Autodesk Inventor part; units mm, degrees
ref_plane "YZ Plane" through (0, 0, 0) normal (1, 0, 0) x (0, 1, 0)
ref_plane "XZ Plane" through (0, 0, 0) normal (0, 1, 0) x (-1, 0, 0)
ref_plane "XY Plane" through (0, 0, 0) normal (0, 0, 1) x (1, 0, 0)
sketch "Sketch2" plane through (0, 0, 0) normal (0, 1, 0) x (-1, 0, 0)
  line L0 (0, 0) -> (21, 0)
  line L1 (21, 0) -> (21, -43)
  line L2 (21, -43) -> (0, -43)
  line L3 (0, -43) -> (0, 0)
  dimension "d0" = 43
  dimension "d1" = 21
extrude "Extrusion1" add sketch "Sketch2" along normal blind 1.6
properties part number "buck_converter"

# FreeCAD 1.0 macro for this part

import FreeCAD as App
import Part
import Sketcher
from FreeCAD import Vector
Q = App.Units.Quantity

doc = App.newDocument("Part")
params = doc.addObject("Spreadsheet::Sheet", "Params")
for row, (alias, value) in enumerate([
    ("sketch1_width", "21 mm"),
    ("sketch1_height", "43 mm"),
    ("pad1_length", "1.6 mm"),
], start=1):
    params.set(f"A{row}", alias)
    params.set(f"B{row}", "=" + value)
    params.setAlias(f"B{row}", alias)

body = doc.addObject("PartDesign::Body", "Body")

# Sketch on XZ plane
sketch1 = body.newObject("Sketcher::SketchObject", "Sketch")
sketch1.AttachmentSupport = (doc.getObject("XZ_Plane"), [""])
sketch1.MapMode = "FlatFace"
sketch1.addGeometry([
    Part.LineSegment(Vector(-21, 0, 0), Vector(0, 0, 0)),
    Part.LineSegment(Vector(0, 0, 0), Vector(0, -43, 0)),
    Part.LineSegment(Vector(0, -43, 0), Vector(-21, -43, 0)),
    Part.LineSegment(Vector(-21, -43, 0), Vector(-21, 0, 0)),
], False)
sketch1.addConstraint([
    Sketcher.Constraint("Coincident", 0, 2, 1, 1),
    Sketcher.Constraint("Coincident", 1, 2, 2, 1),
    Sketcher.Constraint("Coincident", 2, 2, 3, 1),
    Sketcher.Constraint("Coincident", 3, 2, 0, 1),
    Sketcher.Constraint("Horizontal", 0),
    Sketcher.Constraint("Vertical", 1),
    Sketcher.Constraint("Horizontal", 2),
    Sketcher.Constraint("Vertical", 3),
    Sketcher.Constraint("Coincident", 0, 2, -1, 1),
    Sketcher.Constraint("DistanceX", 0, 1, 0, 2, Q("21 mm")),
    Sketcher.Constraint("DistanceY", 1, 2, 1, 1, Q("43 mm")),
])
sketch1.setExpression("Constraints[9]", "Params.sketch1_width")
sketch1.setExpression("Constraints[10]", "Params.sketch1_height")
pad1 = body.newObject("PartDesign::Pad", "Pad")
pad1.Profile = sketch1
pad1.setExpression("Length", "Params.pad1_length")
pad1.Reversed = True

doc.recompute()
